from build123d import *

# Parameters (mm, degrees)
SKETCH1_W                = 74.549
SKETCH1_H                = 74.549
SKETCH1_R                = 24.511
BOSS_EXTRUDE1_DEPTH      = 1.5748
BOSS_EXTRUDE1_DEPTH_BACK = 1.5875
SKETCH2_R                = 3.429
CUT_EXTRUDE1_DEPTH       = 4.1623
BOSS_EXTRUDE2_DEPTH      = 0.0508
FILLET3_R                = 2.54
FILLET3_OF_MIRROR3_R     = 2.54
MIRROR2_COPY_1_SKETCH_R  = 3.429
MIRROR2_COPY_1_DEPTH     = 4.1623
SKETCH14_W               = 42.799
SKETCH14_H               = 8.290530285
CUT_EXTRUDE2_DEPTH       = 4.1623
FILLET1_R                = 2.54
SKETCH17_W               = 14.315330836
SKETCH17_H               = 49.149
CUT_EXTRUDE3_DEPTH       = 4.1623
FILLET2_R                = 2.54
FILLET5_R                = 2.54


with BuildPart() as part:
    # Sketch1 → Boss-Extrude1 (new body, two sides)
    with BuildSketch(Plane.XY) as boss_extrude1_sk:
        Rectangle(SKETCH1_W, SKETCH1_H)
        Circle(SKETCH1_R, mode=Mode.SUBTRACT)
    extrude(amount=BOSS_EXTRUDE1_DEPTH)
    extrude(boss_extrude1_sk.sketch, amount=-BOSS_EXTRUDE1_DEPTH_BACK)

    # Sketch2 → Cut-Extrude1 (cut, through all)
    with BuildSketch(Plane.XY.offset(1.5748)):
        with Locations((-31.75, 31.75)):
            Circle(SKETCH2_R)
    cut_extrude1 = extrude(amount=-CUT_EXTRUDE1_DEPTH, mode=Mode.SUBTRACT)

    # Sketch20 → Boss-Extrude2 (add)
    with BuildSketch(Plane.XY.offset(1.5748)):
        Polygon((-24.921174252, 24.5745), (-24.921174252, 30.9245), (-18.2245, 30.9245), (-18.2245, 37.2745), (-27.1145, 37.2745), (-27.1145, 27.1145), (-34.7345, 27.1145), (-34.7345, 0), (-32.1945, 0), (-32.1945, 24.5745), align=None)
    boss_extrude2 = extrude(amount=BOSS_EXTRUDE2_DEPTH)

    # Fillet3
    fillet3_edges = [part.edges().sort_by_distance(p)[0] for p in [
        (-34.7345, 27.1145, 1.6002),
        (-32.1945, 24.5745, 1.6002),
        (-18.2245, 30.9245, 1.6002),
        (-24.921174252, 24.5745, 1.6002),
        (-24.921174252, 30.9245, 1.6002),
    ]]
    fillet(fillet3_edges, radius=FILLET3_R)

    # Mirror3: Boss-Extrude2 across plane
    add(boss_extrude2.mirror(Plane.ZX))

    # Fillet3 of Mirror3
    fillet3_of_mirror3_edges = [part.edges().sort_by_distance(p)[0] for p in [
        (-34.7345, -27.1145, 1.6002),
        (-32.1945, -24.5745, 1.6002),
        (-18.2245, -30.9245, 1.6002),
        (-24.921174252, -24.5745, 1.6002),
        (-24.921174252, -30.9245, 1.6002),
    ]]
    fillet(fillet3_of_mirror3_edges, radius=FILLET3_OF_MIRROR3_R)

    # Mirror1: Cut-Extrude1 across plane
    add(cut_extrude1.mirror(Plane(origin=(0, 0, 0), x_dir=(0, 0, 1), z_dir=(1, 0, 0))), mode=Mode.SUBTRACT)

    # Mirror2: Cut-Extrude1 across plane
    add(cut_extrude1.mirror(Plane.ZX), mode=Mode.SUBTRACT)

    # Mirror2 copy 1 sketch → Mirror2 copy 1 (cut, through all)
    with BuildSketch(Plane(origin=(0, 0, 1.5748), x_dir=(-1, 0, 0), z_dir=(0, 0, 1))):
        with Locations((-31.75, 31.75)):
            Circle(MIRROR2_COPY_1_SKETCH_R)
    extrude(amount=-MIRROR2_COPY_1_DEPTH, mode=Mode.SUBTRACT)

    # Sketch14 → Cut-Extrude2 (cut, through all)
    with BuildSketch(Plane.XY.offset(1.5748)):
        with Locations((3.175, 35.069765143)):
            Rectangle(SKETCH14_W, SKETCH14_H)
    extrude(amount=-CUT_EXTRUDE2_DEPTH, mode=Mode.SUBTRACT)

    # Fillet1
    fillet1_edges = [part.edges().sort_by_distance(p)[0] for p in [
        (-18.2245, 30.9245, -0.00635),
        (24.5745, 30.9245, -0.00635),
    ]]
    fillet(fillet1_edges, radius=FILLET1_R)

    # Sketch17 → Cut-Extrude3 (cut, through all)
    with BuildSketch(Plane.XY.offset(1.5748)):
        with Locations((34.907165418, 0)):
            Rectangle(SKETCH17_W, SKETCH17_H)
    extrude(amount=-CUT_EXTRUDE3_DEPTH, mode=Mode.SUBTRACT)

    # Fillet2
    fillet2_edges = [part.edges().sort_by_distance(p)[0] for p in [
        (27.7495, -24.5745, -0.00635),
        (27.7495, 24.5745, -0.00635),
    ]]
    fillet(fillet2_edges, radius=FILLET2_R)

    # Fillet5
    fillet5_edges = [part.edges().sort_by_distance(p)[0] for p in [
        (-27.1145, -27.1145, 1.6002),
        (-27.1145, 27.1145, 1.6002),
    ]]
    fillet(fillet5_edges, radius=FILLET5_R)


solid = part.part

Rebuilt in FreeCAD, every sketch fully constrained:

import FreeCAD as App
import Part
import Sketcher
Q = App.Units.Quantity


def edges_at(feature, points):
    """Names of the edges that pass closest to the given points."""
    edges = feature.Shape.Edges
    near = lambda p: min(range(len(edges)), key=lambda i: edges[i].distToShape(Part.Vertex(*p))[0])
    return sorted({f"Edge{near(p) + 1}" for p in points})

doc = App.newDocument("Part")
params = doc.addObject("Spreadsheet::Sheet", "Params")
for row, (alias, value) in enumerate([
    ("sketch1_diameter", "1.93 in"),
    ("sketch1_width", "2.935 in"),
    ("pad1_length", "0.062 in"),
    ("pad1_length2", "0.0625 in"),
    ("sketch2_diameter", "0.27 in"),
    ("sketch3_width", "0.3 in"),
    ("sketch3_width2", "0.1 in"),
    ("sketch3_height", "0.4 in"),
    ("sketch3_width3", "0.35 in"),
    ("sketch3_height2", "0.25 in"),
    ("pad2_length", "0.002 in"),
    ("fillet_radius", "0.1 in"),
    ("fillet2_radius", "0.1 in"),
    ("sketch4_diameter", "0.27 in"),
    ("sketch5_width", "1.685 in"),
    ("fillet3_radius", "0.1 in"),
    ("sketch6_height", "1.935 in"),
    ("fillet4_radius", "0.1 in"),
    ("fillet5_radius", "0.1 in"),
], start=1):
    params.set(f"A{row}", alias)
    params.set(f"B{row}", "=" + value)
    params.setAlias(f"B{row}", alias)

body = doc.addObject("PartDesign::Body", "Body")

# Sketch on XY plane
sketch1 = doc.addObject("Sketcher::SketchObject", "Sketch")
body.addObject(sketch1)
sketch1.AttachmentSupport = (doc.XY_Plane, [""])
sketch1.MapMode = "FlatFace"
sketch1.addGeometry([
    Part.LineSegment(App.Vector(-37, 37, 0), App.Vector(-37, -37, 0)),  # 0
    Part.LineSegment(App.Vector(-37, -37, 0), App.Vector(37, -37, 0)),  # 1
    Part.LineSegment(App.Vector(37, -37, 0), App.Vector(37, 37, 0)),  # 2
    Part.LineSegment(App.Vector(37, 37, 0), App.Vector(-37, 37, 0)),  # 3
    Part.Circle(App.Vector(0, 0, 0), App.Vector(0, 0, 1), 25),  # 4
], False)
sketch1.addConstraint([
    Sketcher.Constraint("Coincident", 0, 2, 1, 1),
    Sketcher.Constraint("Coincident", 1, 2, 2, 1),
    Sketcher.Constraint("Coincident", 2, 2, 3, 1),
    Sketcher.Constraint("Coincident", 3, 2, 0, 1),
    Sketcher.Constraint("Vertical", 0),
    Sketcher.Constraint("Horizontal", 1),
    Sketcher.Constraint("Vertical", 2),
    Sketcher.Constraint("Horizontal", 3),
    Sketcher.Constraint("Coincident", 4, 3, -1, 1),
    Sketcher.Constraint("Symmetric", 0, 2, 2, 2, -1, 1),
    Sketcher.Constraint("Equal", 3, 0),
    Sketcher.Constraint("Diameter", 4, Q("1.93 in")),
    Sketcher.Constraint("DistanceX", 1, 1, 1, 2, Q("2.935 in")),
])
sketch1.setExpression("Constraints[11]", "Params.sketch1_diameter")
sketch1.setExpression("Constraints[12]", "Params.sketch1_width")
pad1 = doc.addObject("PartDesign::Pad", "Pad")
body.addObject(pad1)
pad1.Profile = sketch1
pad1.Type = "TwoLengths"
pad1.setExpression("Length", "Params.pad1_length")
pad1.setExpression("Length2", "Params.pad1_length2")

# Sketch on XY plane
sketch2 = doc.addObject("Sketcher::SketchObject", "Sketch001")
body.addObject(sketch2)
sketch2.AttachmentSupport = (doc.XY_Plane, [""])
sketch2.MapMode = "FlatFace"
sketch2.AttachmentOffset = App.Placement(App.Vector(0, 0, 0.062 * 25.4), App.Rotation())
sketch2.addGeometry(Part.Circle(App.Vector(-31.8, 31.8, 0), App.Vector(0, 0, 1), 3.4), False)
sketch2.addConstraint([
    Sketcher.Constraint("Diameter", 0, Q("0.27 in")),
    Sketcher.Constraint("DistanceX", 0, 3, -1, 1, Q("1.25 in")),
    Sketcher.Constraint("DistanceY", -1, 1, 0, 3, Q("1.25 in")),
])
sketch2.setExpression("Constraints[0]", "Params.sketch2_diameter")
pocket1 = doc.addObject("PartDesign::Pocket", "Pocket")
body.addObject(pocket1)
pocket1.Profile = sketch2
pocket1.Type = "ThroughAll"

# Sketch on XY plane
sketch3 = doc.addObject("Sketcher::SketchObject", "Sketch002")
body.addObject(sketch3)
sketch3.AttachmentSupport = (doc.XY_Plane, [""])
sketch3.MapMode = "FlatFace"
sketch3.AttachmentOffset = App.Placement(App.Vector(0, 0, 0.062 * 25.4), App.Rotation())
sketch3.addGeometry([
    Part.LineSegment(App.Vector(-24.9, 24.6, 0), App.Vector(-24.9, 30.9, 0)),  # 0
    Part.LineSegment(App.Vector(-24.9, 30.9, 0), App.Vector(-18.2, 30.9, 0)),  # 1
    Part.LineSegment(App.Vector(-18.2, 30.9, 0), App.Vector(-18.2, 37.3, 0)),  # 2
    Part.LineSegment(App.Vector(-18.2, 37.3, 0), App.Vector(-27.1, 37.3, 0)),  # 3
    Part.LineSegment(App.Vector(-27.1, 37.3, 0), App.Vector(-27.1, 27.1, 0)),  # 4
    Part.LineSegment(App.Vector(-27.1, 27.1, 0), App.Vector(-34.7, 27.1, 0)),  # 5
    Part.LineSegment(App.Vector(-34.7, 27.1, 0), App.Vector(-34.7, 0, 0)),  # 6
    Part.LineSegment(App.Vector(-34.7, 0, 0), App.Vector(-32.2, 0, 0)),  # 7
    Part.LineSegment(App.Vector(-32.2, 0, 0), App.Vector(-32.2, 24.6, 0)),  # 8
    Part.LineSegment(App.Vector(-32.2, 24.6, 0), App.Vector(-24.9, 24.6, 0)),  # 9
], False)
sketch3.addConstraint([
    Sketcher.Constraint("Coincident", 0, 2, 1, 1),
    Sketcher.Constraint("Coincident", 1, 2, 2, 1),
    Sketcher.Constraint("Coincident", 2, 2, 3, 1),
    Sketcher.Constraint("Coincident", 3, 2, 4, 1),
    Sketcher.Constraint("Coincident", 4, 2, 5, 1),
    Sketcher.Constraint("Coincident", 5, 2, 6, 1),
    Sketcher.Constraint("Coincident", 6, 2, 7, 1),
    Sketcher.Constraint("Coincident", 7, 2, 8, 1),
    Sketcher.Constraint("Coincident", 8, 2, 9, 1),
    Sketcher.Constraint("Coincident", 9, 2, 0, 1),
    Sketcher.Constraint("Vertical", 0),
    Sketcher.Constraint("Horizontal", 1),
    Sketcher.Constraint("Vertical", 2),
    Sketcher.Constraint("Horizontal", 3),
    Sketcher.Constraint("Vertical", 4),
    Sketcher.Constraint("Horizontal", 5),
    Sketcher.Constraint("Vertical", 6),
    Sketcher.Constraint("Horizontal", 7),
    Sketcher.Constraint("Vertical", 8),
    Sketcher.Constraint("Horizontal", 9),
    Sketcher.Constraint("PointOnObject", 6, 2, -1),
    Sketcher.Constraint("Equal", 0, 2),
    Sketcher.Constraint("DistanceX", 5, 2, 5, 1, Q("0.3 in")),
    Sketcher.Constraint("DistanceX", 7, 1, 7, 2, Q("0.1 in")),
    Sketcher.Constraint("DistanceY", 4, 2, 4, 1, Q("0.4 in")),
    Sketcher.Constraint("DistanceX", 3, 2, 3, 1, Q("0.35 in")),
    Sketcher.Constraint("DistanceY", 0, 1, 0, 2, Q("0.25 in")),
    Sketcher.Constraint("DistanceY", 6, 2, 6, 1, Q("1.0675 in")),
    Sketcher.Constraint("DistanceX", 1, 2, -1, 1, Q("0.7175 in")),
    Sketcher.Constraint("DistanceX", 1, 1, 1, 2, Q("6.696674 mm")),
])
sketch3.setExpression("Constraints[22]", "Params.sketch3_width")
sketch3.setExpression("Constraints[23]", "Params.sketch3_width2")
sketch3.setExpression("Constraints[24]", "Params.sketch3_height")
sketch3.setExpression("Constraints[25]", "Params.sketch3_width3")
sketch3.setExpression("Constraints[26]", "Params.sketch3_height2")
pad2 = doc.addObject("PartDesign::Pad", "Pad001")
body.addObject(pad2)
pad2.Profile = sketch3
pad2.setExpression("Length", "Params.pad2_length")
doc.recompute()

fillet = doc.addObject("PartDesign::Fillet", "Fillet")
body.addObject(fillet)
fillet.Base = (pad2, edges_at(pad2, [
    (-34.734, 27.114, 1.6),
    (-32.194, 24.575, 1.6),
    (-18.224, 30.924, 1.6),
    (-24.921, 24.575, 1.6),
    (-24.921, 30.924, 1.6),
]))
fillet.setExpression("Radius", "Params.fillet_radius")
doc.recompute()

mirrored = doc.addObject("PartDesign::Mirrored", "Mirrored")
body.addObject(mirrored)
mirrored.Originals = [pad2]
mirrored.MirrorPlane = (doc.XZ_Plane, [""])
body.Tip = mirrored
doc.recompute()

fillet2 = doc.addObject("PartDesign::Fillet", "Fillet001")
body.addObject(fillet2)
fillet2.Base = (mirrored, edges_at(mirrored, [
    (-34.734, -27.114, 1.6),
    (-32.194, -24.575, 1.6),
    (-18.224, -30.924, 1.6),
    (-24.921, -24.575, 1.6),
    (-24.921, -30.924, 1.6),
]))
fillet2.setExpression("Radius", "Params.fillet2_radius")
doc.recompute()

mirrored2 = doc.addObject("PartDesign::Mirrored", "Mirrored001")
body.addObject(mirrored2)
mirrored2.Originals = [pocket1]
mirrored2.MirrorPlane = (doc.YZ_Plane, [""])
body.Tip = mirrored2
doc.recompute()

mirrored3 = doc.addObject("PartDesign::Mirrored", "Mirrored002")
body.addObject(mirrored3)
mirrored3.Originals = [pocket1]
mirrored3.MirrorPlane = (doc.XZ_Plane, [""])
body.Tip = mirrored3

# Sketch on XY plane
sketch4 = doc.addObject("Sketcher::SketchObject", "Sketch003")
body.addObject(sketch4)
sketch4.AttachmentSupport = (doc.XY_Plane, [""])
sketch4.MapMode = "FlatFace"
sketch4.AttachmentOffset = App.Placement(App.Vector(0, 0, 0.062 * 25.4), App.Rotation())
sketch4.addGeometry(Part.Circle(App.Vector(31.8, -31.8, 0), App.Vector(0, 0, 1), 3.4), False)
sketch4.addConstraint([
    Sketcher.Constraint("Diameter", 0, Q("0.27 in")),
    Sketcher.Constraint("DistanceX", -1, 1, 0, 3, Q("1.25 in")),
    Sketcher.Constraint("DistanceY", 0, 3, -1, 1, Q("1.25 in")),
])
sketch4.setExpression("Constraints[0]", "Params.sketch4_diameter")
pocket2 = doc.addObject("PartDesign::Pocket", "Pocket001")
body.addObject(pocket2)
pocket2.Profile = sketch4
pocket2.Type = "ThroughAll"

# Sketch on XY plane
sketch5 = doc.addObject("Sketcher::SketchObject", "Sketch004")
body.addObject(sketch5)
sketch5.AttachmentSupport = (doc.XY_Plane, [""])
sketch5.MapMode = "FlatFace"
sketch5.AttachmentOffset = App.Placement(App.Vector(0, 0, 0.062 * 25.4), App.Rotation())
sketch5.addGeometry([
    Part.LineSegment(App.Vector(-18, 39, 0), App.Vector(-18, 31, 0)),
    Part.LineSegment(App.Vector(-18, 31, 0), App.Vector(25, 31, 0)),
    Part.LineSegment(App.Vector(25, 31, 0), App.Vector(25, 39, 0)),
    Part.LineSegment(App.Vector(25, 39, 0), App.Vector(-18, 39, 0)),
], False)
sketch5.addConstraint([
    Sketcher.Constraint("Coincident", 0, 2, 1, 1),
    Sketcher.Constraint("Coincident", 1, 2, 2, 1),
    Sketcher.Constraint("Coincident", 2, 2, 3, 1),
    Sketcher.Constraint("Coincident", 3, 2, 0, 1),
    Sketcher.Constraint("Vertical", 0),
    Sketcher.Constraint("Horizontal", 1),
    Sketcher.Constraint("Vertical", 2),
    Sketcher.Constraint("Horizontal", 3),
    Sketcher.Constraint("DistanceX", 1, 1, 1, 2, Q("1.685 in")),
    Sketcher.Constraint("DistanceX", 0, 2, -1, 1, Q("0.7175 in")),
    Sketcher.Constraint("DistanceY", -1, 1, 0, 2, Q("1.2175 in")),
    Sketcher.Constraint("DistanceY", 0, 2, 0, 1, Q("8.29053 mm")),
])
sketch5.setExpression("Constraints[8]", "Params.sketch5_width")
pocket3 = doc.addObject("PartDesign::Pocket", "Pocket002")
body.addObject(pocket3)
pocket3.Profile = sketch5
pocket3.Type = "ThroughAll"
doc.recompute()

fillet3 = doc.addObject("PartDesign::Fillet", "Fillet002")
body.addObject(fillet3)
fillet3.Base = (pocket3, edges_at(pocket3, [(-18.224, 30.924, -0.006), (24.575, 30.924, -0.006)]))
fillet3.setExpression("Radius", "Params.fillet3_radius")

# Sketch on XY plane
sketch6 = doc.addObject("Sketcher::SketchObject", "Sketch005")
body.addObject(sketch6)
sketch6.AttachmentSupport = (doc.XY_Plane, [""])
sketch6.MapMode = "FlatFace"
sketch6.AttachmentOffset = App.Placement(App.Vector(0, 0, 0.062 * 25.4), App.Rotation())
sketch6.addGeometry([
    Part.LineSegment(App.Vector(28, 25, 0), App.Vector(28, -25, 0)),
    Part.LineSegment(App.Vector(28, -25, 0), App.Vector(42, -25, 0)),
    Part.LineSegment(App.Vector(42, -25, 0), App.Vector(42, 25, 0)),
    Part.LineSegment(App.Vector(42, 25, 0), App.Vector(28, 25, 0)),
], False)
sketch6.addConstraint([
    Sketcher.Constraint("Coincident", 0, 2, 1, 1),
    Sketcher.Constraint("Coincident", 1, 2, 2, 1),
    Sketcher.Constraint("Coincident", 2, 2, 3, 1),
    Sketcher.Constraint("Coincident", 3, 2, 0, 1),
    Sketcher.Constraint("Vertical", 0),
    Sketcher.Constraint("Horizontal", 1),
    Sketcher.Constraint("Vertical", 2),
    Sketcher.Constraint("Horizontal", 3),
    Sketcher.Constraint("DistanceY", 0, 2, 0, 1, Q("1.935 in")),
    Sketcher.Constraint("DistanceX", -1, 1, 0, 2, Q("1.0925 in")),
    Sketcher.Constraint("DistanceY", 0, 2, -1, 1, Q("0.9675 in")),
    Sketcher.Constraint("DistanceX", 1, 1, 1, 2, Q("14.315331 mm")),
])
sketch6.setExpression("Constraints[8]", "Params.sketch6_height")
pocket4 = doc.addObject("PartDesign::Pocket", "Pocket003")
body.addObject(pocket4)
pocket4.Profile = sketch6
pocket4.Type = "ThroughAll"
doc.recompute()

fillet4 = doc.addObject("PartDesign::Fillet", "Fillet003")
body.addObject(fillet4)
fillet4.Base = (pocket4, edges_at(pocket4, [(27.75, -24.575, -0.006), (27.75, 24.575, -0.006)]))
fillet4.setExpression("Radius", "Params.fillet4_radius")
doc.recompute()

fillet5 = doc.addObject("PartDesign::Fillet", "Fillet004")
body.addObject(fillet5)
fillet5.Base = (fillet4, edges_at(fillet4, [(-27.114, -27.114, 1.6), (-27.114, 27.114, 1.6)]))
fillet5.setExpression("Radius", "Params.fillet5_radius")

doc.recompute()
